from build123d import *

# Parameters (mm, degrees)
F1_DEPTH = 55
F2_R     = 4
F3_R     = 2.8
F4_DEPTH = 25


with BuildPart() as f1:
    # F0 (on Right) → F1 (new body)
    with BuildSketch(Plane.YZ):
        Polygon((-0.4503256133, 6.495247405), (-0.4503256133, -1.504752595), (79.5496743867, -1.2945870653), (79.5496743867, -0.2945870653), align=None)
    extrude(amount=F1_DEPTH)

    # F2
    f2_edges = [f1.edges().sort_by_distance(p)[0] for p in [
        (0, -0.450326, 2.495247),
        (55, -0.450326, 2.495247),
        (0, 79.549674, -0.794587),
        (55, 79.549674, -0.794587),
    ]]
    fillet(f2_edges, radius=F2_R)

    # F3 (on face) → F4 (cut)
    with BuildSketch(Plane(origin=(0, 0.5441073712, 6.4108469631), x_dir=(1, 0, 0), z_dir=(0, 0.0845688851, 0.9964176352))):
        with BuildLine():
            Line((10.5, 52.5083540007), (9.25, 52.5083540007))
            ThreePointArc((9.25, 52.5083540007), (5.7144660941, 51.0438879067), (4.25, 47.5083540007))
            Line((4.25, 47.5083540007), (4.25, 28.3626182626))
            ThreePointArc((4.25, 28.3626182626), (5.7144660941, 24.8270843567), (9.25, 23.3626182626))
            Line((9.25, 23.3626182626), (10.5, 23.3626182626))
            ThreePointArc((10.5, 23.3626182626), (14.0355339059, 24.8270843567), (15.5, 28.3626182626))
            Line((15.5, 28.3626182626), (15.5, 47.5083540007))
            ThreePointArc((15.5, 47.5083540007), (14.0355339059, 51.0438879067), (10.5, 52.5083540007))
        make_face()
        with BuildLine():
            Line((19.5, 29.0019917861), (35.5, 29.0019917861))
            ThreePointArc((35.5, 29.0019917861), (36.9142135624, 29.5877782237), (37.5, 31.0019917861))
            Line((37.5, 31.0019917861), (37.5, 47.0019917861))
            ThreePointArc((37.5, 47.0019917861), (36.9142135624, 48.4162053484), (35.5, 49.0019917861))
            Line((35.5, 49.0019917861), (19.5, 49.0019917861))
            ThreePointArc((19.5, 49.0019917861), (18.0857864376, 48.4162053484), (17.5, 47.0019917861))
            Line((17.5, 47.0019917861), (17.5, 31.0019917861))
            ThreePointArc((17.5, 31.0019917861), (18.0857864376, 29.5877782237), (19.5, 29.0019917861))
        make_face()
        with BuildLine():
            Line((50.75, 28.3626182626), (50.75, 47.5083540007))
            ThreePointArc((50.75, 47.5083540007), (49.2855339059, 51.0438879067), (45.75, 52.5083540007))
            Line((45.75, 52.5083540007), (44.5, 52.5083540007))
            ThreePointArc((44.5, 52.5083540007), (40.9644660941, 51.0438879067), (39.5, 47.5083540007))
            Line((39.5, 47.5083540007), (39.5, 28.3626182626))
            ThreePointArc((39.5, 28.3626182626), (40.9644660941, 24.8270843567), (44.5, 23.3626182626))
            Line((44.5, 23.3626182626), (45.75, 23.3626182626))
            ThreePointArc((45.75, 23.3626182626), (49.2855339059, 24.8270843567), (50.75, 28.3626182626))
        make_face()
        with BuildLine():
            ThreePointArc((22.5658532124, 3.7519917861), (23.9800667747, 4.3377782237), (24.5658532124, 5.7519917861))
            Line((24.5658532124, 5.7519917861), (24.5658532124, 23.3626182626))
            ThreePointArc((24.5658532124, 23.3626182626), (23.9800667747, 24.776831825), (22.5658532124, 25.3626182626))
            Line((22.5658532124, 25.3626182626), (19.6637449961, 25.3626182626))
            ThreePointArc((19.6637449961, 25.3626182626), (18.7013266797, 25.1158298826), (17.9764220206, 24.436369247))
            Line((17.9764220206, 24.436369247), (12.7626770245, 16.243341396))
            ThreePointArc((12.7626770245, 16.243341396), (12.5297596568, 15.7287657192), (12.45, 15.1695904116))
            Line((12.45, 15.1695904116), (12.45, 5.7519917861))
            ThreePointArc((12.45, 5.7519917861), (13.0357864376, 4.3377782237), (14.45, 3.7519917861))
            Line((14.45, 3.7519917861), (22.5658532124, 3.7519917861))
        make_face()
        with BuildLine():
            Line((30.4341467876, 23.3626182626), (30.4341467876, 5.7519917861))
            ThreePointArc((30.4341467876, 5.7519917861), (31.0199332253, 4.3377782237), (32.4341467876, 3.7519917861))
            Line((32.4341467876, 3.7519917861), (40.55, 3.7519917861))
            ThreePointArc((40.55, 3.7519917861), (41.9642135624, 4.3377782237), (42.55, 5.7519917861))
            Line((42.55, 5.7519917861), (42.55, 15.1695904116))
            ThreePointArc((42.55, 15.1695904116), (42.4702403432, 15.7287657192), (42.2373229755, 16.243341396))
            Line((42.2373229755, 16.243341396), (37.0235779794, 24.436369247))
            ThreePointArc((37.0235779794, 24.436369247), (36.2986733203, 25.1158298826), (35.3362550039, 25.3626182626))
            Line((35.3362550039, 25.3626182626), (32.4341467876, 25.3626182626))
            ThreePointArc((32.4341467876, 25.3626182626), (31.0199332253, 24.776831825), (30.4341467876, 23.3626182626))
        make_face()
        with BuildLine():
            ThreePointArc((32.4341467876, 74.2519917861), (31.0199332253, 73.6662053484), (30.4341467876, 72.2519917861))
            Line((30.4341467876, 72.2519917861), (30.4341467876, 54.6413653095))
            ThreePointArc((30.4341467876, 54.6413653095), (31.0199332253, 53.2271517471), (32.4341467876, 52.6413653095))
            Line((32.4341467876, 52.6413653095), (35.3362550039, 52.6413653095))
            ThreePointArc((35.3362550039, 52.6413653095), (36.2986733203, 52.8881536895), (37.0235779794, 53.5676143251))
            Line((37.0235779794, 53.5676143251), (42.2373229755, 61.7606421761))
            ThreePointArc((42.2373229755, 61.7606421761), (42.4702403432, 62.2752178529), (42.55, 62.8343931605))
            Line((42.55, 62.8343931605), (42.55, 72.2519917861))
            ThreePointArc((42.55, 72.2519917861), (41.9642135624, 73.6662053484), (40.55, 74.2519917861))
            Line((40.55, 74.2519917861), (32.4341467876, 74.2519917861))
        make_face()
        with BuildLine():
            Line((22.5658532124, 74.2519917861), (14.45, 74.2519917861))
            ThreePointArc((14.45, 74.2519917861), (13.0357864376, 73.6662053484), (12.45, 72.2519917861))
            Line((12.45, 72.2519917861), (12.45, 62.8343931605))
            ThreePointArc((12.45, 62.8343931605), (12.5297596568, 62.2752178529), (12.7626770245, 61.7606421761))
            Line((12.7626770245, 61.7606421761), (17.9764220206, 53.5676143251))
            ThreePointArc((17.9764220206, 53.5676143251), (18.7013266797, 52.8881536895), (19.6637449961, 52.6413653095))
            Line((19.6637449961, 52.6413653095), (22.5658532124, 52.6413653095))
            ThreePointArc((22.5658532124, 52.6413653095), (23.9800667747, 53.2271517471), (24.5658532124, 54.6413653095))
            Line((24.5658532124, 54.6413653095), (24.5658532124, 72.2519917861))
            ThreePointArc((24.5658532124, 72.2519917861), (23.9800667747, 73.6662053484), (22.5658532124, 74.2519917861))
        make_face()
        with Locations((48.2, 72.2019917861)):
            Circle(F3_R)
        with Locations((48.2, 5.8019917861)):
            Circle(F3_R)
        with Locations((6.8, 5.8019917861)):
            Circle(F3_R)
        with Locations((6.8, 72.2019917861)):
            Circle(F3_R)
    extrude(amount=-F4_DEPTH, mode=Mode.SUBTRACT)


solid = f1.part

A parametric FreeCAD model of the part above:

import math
import FreeCAD as App
import Part
import Sketcher
from FreeCAD import Vector


def edges_at(feature, points):
    """Names of the edges that pass closest to the given points."""
    edges = feature.Shape.Edges
    near = lambda p: min(range(len(edges)), key=lambda i: edges[i].distToShape(Part.Vertex(*p))[0])
    return sorted({f"Edge{near(p) + 1}" for p in points})


def add_polygon(sketch, points):
    """Adds a closed chain of lines whose ends are joined by coincident constraints."""
    first, n = sketch.GeometryCount, len(points)
    for a, b in zip(points, points[1:] + points[:1]):
        sketch.addGeometry(Part.LineSegment(App.Vector(*a, 0), App.Vector(*b, 0)), False)
    for i in range(n):
        sketch.addConstraint(Sketcher.Constraint("Coincident", first + i, 2, first + (i + 1) % n, 1))

doc = App.newDocument("Part")
body = doc.addObject("PartDesign::Body", "Body")

# Sketch on YZ plane
sketch1 = body.newObject("Sketcher::SketchObject", "Sketch")
sketch1.AttachmentSupport = (doc.getObject("YZ_Plane"), [""])
sketch1.MapMode = "FlatFace"
add_polygon(sketch1, [(-0.450326, 6.495247), (-0.450326, -1.504753), (79.549674, -1.294587), (79.549674, -0.294587)])  # lines 0-3
sketch1.addConstraint([
    Sketcher.Constraint("Vertical", 0),
    Sketcher.Constraint("Vertical", 2),
    Sketcher.Constraint("DistanceY", 0, 2, 0, 1, 8.0),
    Sketcher.Constraint("DistanceY", 2, 1, 2, 2, 1.0),
    Sketcher.Constraint("DistanceX", 0, 2, 1, 2, 80.0),
    Sketcher.Constraint("Distance", 3, 80.28762),
    Sketcher.Constraint("DistanceX", 0, 2, -1, 1, 0.450326),
    Sketcher.Constraint("DistanceY", 0, 2, -1, 1, 1.504753),
])
pad1 = body.newObject("PartDesign::Pad", "Pad")
pad1.Profile = sketch1
pad1.Length = 55
doc.recompute()

fillet = body.newObject("PartDesign::Fillet", "Fillet")
fillet.Base = (pad1, edges_at(pad1, [
    (0, -0.45, 2.495),
    (55, -0.45, 2.495),
    (0, 79.55, -0.795),
    (55, 79.55, -0.795),
]))
fillet.Radius = 4

# Sketch on an angled plane
sketch2 = body.newObject("Sketcher::SketchObject", "Sketch001")
sketch2.Placement = App.Placement(Vector(0, 0.544107, 6.410847), App.Rotation(Vector(1, 0, 0), Vector(0, 0.996417635, -0.084568885), Vector(0, 0.084568885, 0.996417635), "ZXY"))
sketch2.addGeometry([
    Part.LineSegment(Vector(10.5, 52.508354, 0), Vector(9.25, 52.508354, 0)),  # 0
    Part.ArcOfCircle(Part.Circle(Vector(9.25, 47.508354, 0), Vector(0, 0, 1), 5), math.radians(90), math.radians(180)),  # 1
    Part.LineSegment(Vector(4.25, 47.508354, 0), Vector(4.25, 28.362618, 0)),  # 2
    Part.ArcOfCircle(Part.Circle(Vector(9.25, 28.362618, 0), Vector(0, 0, 1), 5), math.radians(180), math.radians(270)),  # 3
    Part.LineSegment(Vector(9.25, 23.362618, 0), Vector(10.5, 23.362618, 0)),  # 4
    Part.ArcOfCircle(Part.Circle(Vector(10.5, 28.362618, 0), Vector(0, 0, 1), 5), math.radians(-90), math.radians(0)),  # 5
    Part.LineSegment(Vector(15.5, 28.362618, 0), Vector(15.5, 47.508354, 0)),  # 6
    Part.ArcOfCircle(Part.Circle(Vector(10.5, 47.508354, 0), Vector(0, 0, 1), 5), math.radians(0), math.radians(90)),  # 7
    Part.LineSegment(Vector(19.5, 29.001992, 0), Vector(35.5, 29.001992, 0)),  # 8
    Part.ArcOfCircle(Part.Circle(Vector(35.5, 31.001992, 0), Vector(0, 0, 1), 2), math.radians(-90), math.radians(0)),  # 9
    Part.LineSegment(Vector(37.5, 31.001992, 0), Vector(37.5, 47.001992, 0)),  # 10
    Part.ArcOfCircle(Part.Circle(Vector(35.5, 47.001992, 0), Vector(0, 0, 1), 2), math.radians(0), math.radians(90)),  # 11
    Part.LineSegment(Vector(35.5, 49.001992, 0), Vector(19.5, 49.001992, 0)),  # 12
    Part.ArcOfCircle(Part.Circle(Vector(19.5, 47.001992, 0), Vector(0, 0, 1), 2), math.radians(90), math.radians(180)),  # 13
    Part.LineSegment(Vector(17.5, 47.001992, 0), Vector(17.5, 31.001992, 0)),  # 14
    Part.ArcOfCircle(Part.Circle(Vector(19.5, 31.001992, 0), Vector(0, 0, 1), 2), math.radians(180), math.radians(270)),  # 15
    Part.LineSegment(Vector(50.75, 28.362618, 0), Vector(50.75, 47.508354, 0)),  # 16
    Part.ArcOfCircle(Part.Circle(Vector(45.75, 47.508354, 0), Vector(0, 0, 1), 5), math.radians(0), math.radians(90)),  # 17
    Part.LineSegment(Vector(45.75, 52.508354, 0), Vector(44.5, 52.508354, 0)),  # 18
    Part.ArcOfCircle(Part.Circle(Vector(44.5, 47.508354, 0), Vector(0, 0, 1), 5), math.radians(90), math.radians(180)),  # 19
    Part.LineSegment(Vector(39.5, 47.508354, 0), Vector(39.5, 28.362618, 0)),  # 20
    Part.ArcOfCircle(Part.Circle(Vector(44.5, 28.362618, 0), Vector(0, 0, 1), 5), math.radians(180), math.radians(270)),  # 21
    Part.LineSegment(Vector(44.5, 23.362618, 0), Vector(45.75, 23.362618, 0)),  # 22
    Part.ArcOfCircle(Part.Circle(Vector(45.75, 28.362618, 0), Vector(0, 0, 1), 5), math.radians(-90), math.radians(0)),  # 23
    Part.ArcOfCircle(Part.Circle(Vector(22.565853, 5.751992, 0), Vector(0, 0, 1), 2), math.radians(-90), math.radians(0)),  # 24
    Part.LineSegment(Vector(24.565853, 5.751992, 0), Vector(24.565853, 23.362618, 0)),  # 25
    Part.ArcOfCircle(Part.Circle(Vector(22.565853, 23.362618, 0), Vector(0, 0, 1), 2), math.radians(0), math.radians(90)),  # 26
    Part.LineSegment(Vector(22.565853, 25.362618, 0), Vector(19.663745, 25.362618, 0)),  # 27
    Part.ArcOfCircle(Part.Circle(Vector(19.663745, 23.362618, 0), Vector(0, 0, 1), 2), math.radians(90), math.radians(147.528808)),  # 28
    Part.LineSegment(Vector(17.976422, 24.436369, 0), Vector(12.762677, 16.243341, 0)),  # 29
    Part.ArcOfCircle(Part.Circle(Vector(14.45, 15.16959, 0), Vector(0, 0, 1), 2), math.radians(147.528808), math.radians(180)),  # 30
    Part.LineSegment(Vector(12.45, 15.16959, 0), Vector(12.45, 5.751992, 0)),  # 31
    Part.ArcOfCircle(Part.Circle(Vector(14.45, 5.751992, 0), Vector(0, 0, 1), 2), math.radians(180), math.radians(270)),  # 32
    Part.LineSegment(Vector(14.45, 3.751992, 0), Vector(22.565853, 3.751992, 0)),  # 33
    Part.LineSegment(Vector(30.434147, 23.362618, 0), Vector(30.434147, 5.751992, 0)),  # 34
    Part.ArcOfCircle(Part.Circle(Vector(32.434147, 5.751992, 0), Vector(0, 0, 1), 2), math.radians(180), math.radians(270)),  # 35
    Part.LineSegment(Vector(32.434147, 3.751992, 0), Vector(40.55, 3.751992, 0)),  # 36
    Part.ArcOfCircle(Part.Circle(Vector(40.55, 5.751992, 0), Vector(0, 0, 1), 2), math.radians(-90), math.radians(0)),  # 37
    Part.LineSegment(Vector(42.55, 5.751992, 0), Vector(42.55, 15.16959, 0)),  # 38
    Part.ArcOfCircle(Part.Circle(Vector(40.55, 15.16959, 0), Vector(0, 0, 1), 2), math.radians(0), math.radians(32.471192)),  # 39
    Part.LineSegment(Vector(42.237323, 16.243341, 0), Vector(37.023578, 24.436369, 0)),  # 40
    Part.ArcOfCircle(Part.Circle(Vector(35.336255, 23.362618, 0), Vector(0, 0, 1), 2), math.radians(32.471192), math.radians(90)),  # 41
    Part.LineSegment(Vector(35.336255, 25.362618, 0), Vector(32.434147, 25.362618, 0)),  # 42
    Part.ArcOfCircle(Part.Circle(Vector(32.434147, 23.362618, 0), Vector(0, 0, 1), 2), math.radians(90), math.radians(180)),  # 43
    Part.ArcOfCircle(Part.Circle(Vector(32.434147, 72.251992, 0), Vector(0, 0, 1), 2), math.radians(90), math.radians(180)),  # 44
    Part.LineSegment(Vector(30.434147, 72.251992, 0), Vector(30.434147, 54.641365, 0)),  # 45
    Part.ArcOfCircle(Part.Circle(Vector(32.434147, 54.641365, 0), Vector(0, 0, 1), 2), math.radians(180), math.radians(270)),  # 46
    Part.LineSegment(Vector(32.434147, 52.641365, 0), Vector(35.336255, 52.641365, 0)),  # 47
    Part.ArcOfCircle(Part.Circle(Vector(35.336255, 54.641365, 0), Vector(0, 0, 1), 2), math.radians(-90), math.radians(-32.471192)),  # 48
    Part.LineSegment(Vector(37.023578, 53.567614, 0), Vector(42.237323, 61.760642, 0)),  # 49
    Part.ArcOfCircle(Part.Circle(Vector(40.55, 62.834393, 0), Vector(0, 0, 1), 2), math.radians(-32.471192), math.radians(0)),  # 50
    Part.LineSegment(Vector(42.55, 62.834393, 0), Vector(42.55, 72.251992, 0)),  # 51
    Part.ArcOfCircle(Part.Circle(Vector(40.55, 72.251992, 0), Vector(0, 0, 1), 2), math.radians(0), math.radians(90)),  # 52
    Part.LineSegment(Vector(40.55, 74.251992, 0), Vector(32.434147, 74.251992, 0)),  # 53
    Part.LineSegment(Vector(22.565853, 74.251992, 0), Vector(14.45, 74.251992, 0)),  # 54
    Part.ArcOfCircle(Part.Circle(Vector(14.45, 72.251992, 0), Vector(0, 0, 1), 2), math.radians(90), math.radians(180)),  # 55
    Part.LineSegment(Vector(12.45, 72.251992, 0), Vector(12.45, 62.834393, 0)),  # 56
    Part.ArcOfCircle(Part.Circle(Vector(14.45, 62.834393, 0), Vector(0, 0, 1), 2), math.radians(180), math.radians(212.471192)),  # 57
    Part.LineSegment(Vector(12.762677, 61.760642, 0), Vector(17.976422, 53.567614, 0)),  # 58
    Part.ArcOfCircle(Part.Circle(Vector(19.663745, 54.641365, 0), Vector(0, 0, 1), 2), math.radians(-147.528808), math.radians(-90)),  # 59
    Part.LineSegment(Vector(19.663745, 52.641365, 0), Vector(22.565853, 52.641365, 0)),  # 60
    Part.ArcOfCircle(Part.Circle(Vector(22.565853, 54.641365, 0), Vector(0, 0, 1), 2), math.radians(-90), math.radians(0)),  # 61
    Part.LineSegment(Vector(24.565853, 54.641365, 0), Vector(24.565853, 72.251992, 0)),  # 62
    Part.ArcOfCircle(Part.Circle(Vector(22.565853, 72.251992, 0), Vector(0, 0, 1), 2), math.radians(0), math.radians(90)),  # 63
    Part.Circle(Vector(48.2, 72.201992, 0), Vector(0, 0, 1), 2.8),  # 64
    Part.Circle(Vector(48.2, 5.801992, 0), Vector(0, 0, 1), 2.8),  # 65
    Part.Circle(Vector(6.8, 5.801992, 0), Vector(0, 0, 1), 2.8),  # 66
    Part.Circle(Vector(6.8, 72.201992, 0), Vector(0, 0, 1), 2.8),  # 67
], False)
sketch2.addConstraint([
    Sketcher.Constraint("Tangent", 0, 2, 1, 1),
    Sketcher.Constraint("Tangent", 1, 2, 2, 1),
    Sketcher.Constraint("Tangent", 2, 2, 3, 1),
    Sketcher.Constraint("Tangent", 3, 2, 4, 1),
    Sketcher.Constraint("Tangent", 4, 2, 5, 1),
    Sketcher.Constraint("Tangent", 5, 2, 6, 1),
    Sketcher.Constraint("Tangent", 6, 2, 7, 1),
    Sketcher.Constraint("Tangent", 7, 2, 0, 1),
    Sketcher.Constraint("Tangent", 8, 2, 9, 1),
    Sketcher.Constraint("Tangent", 9, 2, 10, 1),
    Sketcher.Constraint("Tangent", 10, 2, 11, 1),
    Sketcher.Constraint("Tangent", 11, 2, 12, 1),
    Sketcher.Constraint("Tangent", 12, 2, 13, 1),
    Sketcher.Constraint("Tangent", 13, 2, 14, 1),
    Sketcher.Constraint("Tangent", 14, 2, 15, 1),
    Sketcher.Constraint("Tangent", 15, 2, 8, 1),
    Sketcher.Constraint("Tangent", 16, 2, 17, 1),
    Sketcher.Constraint("Tangent", 17, 2, 18, 1),
    Sketcher.Constraint("Tangent", 18, 2, 19, 1),
    Sketcher.Constraint("Tangent", 19, 2, 20, 1),
    Sketcher.Constraint("Tangent", 20, 2, 21, 1),
    Sketcher.Constraint("Tangent", 21, 2, 22, 1),
    Sketcher.Constraint("Tangent", 22, 2, 23, 1),
    Sketcher.Constraint("Tangent", 23, 2, 16, 1),
    Sketcher.Constraint("Tangent", 24, 2, 25, 1),
    Sketcher.Constraint("Tangent", 25, 2, 26, 1),
    Sketcher.Constraint("Tangent", 26, 2, 27, 1),
    Sketcher.Constraint("Tangent", 27, 2, 28, 1),
    Sketcher.Constraint("Tangent", 28, 2, 29, 1),
    Sketcher.Constraint("Tangent", 29, 2, 30, 1),
    Sketcher.Constraint("Tangent", 30, 2, 31, 1),
    Sketcher.Constraint("Tangent", 31, 2, 32, 1),
    Sketcher.Constraint("Tangent", 32, 2, 33, 1),
    Sketcher.Constraint("Tangent", 33, 2, 24, 1),
    Sketcher.Constraint("Tangent", 34, 2, 35, 1),
    Sketcher.Constraint("Tangent", 35, 2, 36, 1),
    Sketcher.Constraint("Tangent", 36, 2, 37, 1),
    Sketcher.Constraint("Tangent", 37, 2, 38, 1),
    Sketcher.Constraint("Tangent", 38, 2, 39, 1),
    Sketcher.Constraint("Tangent", 39, 2, 40, 1),
    Sketcher.Constraint("Tangent", 40, 2, 41, 1),
    Sketcher.Constraint("Tangent", 41, 2, 42, 1),
    Sketcher.Constraint("Tangent", 42, 2, 43, 1),
    Sketcher.Constraint("Tangent", 43, 2, 34, 1),
    Sketcher.Constraint("Tangent", 44, 2, 45, 1),
    Sketcher.Constraint("Tangent", 45, 2, 46, 1),
    Sketcher.Constraint("Tangent", 46, 2, 47, 1),
    Sketcher.Constraint("Tangent", 47, 2, 48, 1),
    Sketcher.Constraint("Tangent", 48, 2, 49, 1),
    Sketcher.Constraint("Tangent", 49, 2, 50, 1),
    Sketcher.Constraint("Tangent", 50, 2, 51, 1),
    Sketcher.Constraint("Tangent", 51, 2, 52, 1),
    Sketcher.Constraint("Tangent", 52, 2, 53, 1),
    Sketcher.Constraint("Tangent", 53, 2, 44, 1),
    Sketcher.Constraint("Tangent", 54, 2, 55, 1),
    Sketcher.Constraint("Tangent", 55, 2, 56, 1),
    Sketcher.Constraint("Tangent", 56, 2, 57, 1),
    Sketcher.Constraint("Tangent", 57, 2, 58, 1),
    Sketcher.Constraint("Tangent", 58, 2, 59, 1),
    Sketcher.Constraint("Tangent", 59, 2, 60, 1),
    Sketcher.Constraint("Tangent", 60, 2, 61, 1),
    Sketcher.Constraint("Tangent", 61, 2, 62, 1),
    Sketcher.Constraint("Tangent", 62, 2, 63, 1),
    Sketcher.Constraint("Tangent", 63, 2, 54, 1),
    Sketcher.Constraint("Horizontal", 0),
    Sketcher.Constraint("Vertical", 2),
    Sketcher.Constraint("Horizontal", 4),
    Sketcher.Constraint("Vertical", 6),
    Sketcher.Constraint("Horizontal", 8),
    Sketcher.Constraint("Vertical", 10),
    Sketcher.Constraint("Horizontal", 12),
    Sketcher.Constraint("Vertical", 14),
    Sketcher.Constraint("Vertical", 16),
    Sketcher.Constraint("Horizontal", 18),
    Sketcher.Constraint("Vertical", 20),
    Sketcher.Constraint("Horizontal", 22),
    Sketcher.Constraint("Vertical", 25),
    Sketcher.Constraint("Horizontal", 27),
    Sketcher.Constraint("Vertical", 31),
    Sketcher.Constraint("Horizontal", 33),
    Sketcher.Constraint("Vertical", 34),
    Sketcher.Constraint("Horizontal", 36),
    Sketcher.Constraint("Vertical", 38),
    Sketcher.Constraint("Horizontal", 42),
    Sketcher.Constraint("Vertical", 45),
    Sketcher.Constraint("Horizontal", 47),
    Sketcher.Constraint("Vertical", 51),
    Sketcher.Constraint("Horizontal", 53),
    Sketcher.Constraint("Horizontal", 54),
    Sketcher.Constraint("Vertical", 56),
    Sketcher.Constraint("Horizontal", 60),
    Sketcher.Constraint("Vertical", 62),
    Sketcher.Constraint("Equal", 1, 3),
    Sketcher.Constraint("Equal", 3, 5),
    Sketcher.Constraint("Equal", 5, 7),
    Sketcher.Constraint("Equal", 9, 11),
    Sketcher.Constraint("Equal", 11, 13),
    Sketcher.Constraint("Equal", 13, 15),
    Sketcher.Constraint("Equal", 7, 17),
    Sketcher.Constraint("Equal", 17, 19),
    Sketcher.Constraint("Equal", 19, 21),
    Sketcher.Constraint("Equal", 21, 23),
    Sketcher.Constraint("Equal", 15, 24),
    Sketcher.Constraint("Equal", 24, 26),
    Sketcher.Constraint("Equal", 26, 28),
    Sketcher.Constraint("Equal", 28, 30),
    Sketcher.Constraint("Equal", 30, 32),
    Sketcher.Constraint("Equal", 32, 35),
    Sketcher.Constraint("Equal", 35, 37),
    Sketcher.Constraint("Equal", 37, 39),
    Sketcher.Constraint("Equal", 39, 41),
    Sketcher.Constraint("Equal", 41, 43),
    Sketcher.Constraint("Equal", 43, 44),
    Sketcher.Constraint("Equal", 44, 46),
    Sketcher.Constraint("Equal", 46, 48),
    Sketcher.Constraint("Equal", 48, 50),
    Sketcher.Constraint("Equal", 50, 52),
    Sketcher.Constraint("Equal", 52, 55),
    Sketcher.Constraint("Equal", 55, 57),
    Sketcher.Constraint("Equal", 57, 59),
    Sketcher.Constraint("Equal", 59, 61),
    Sketcher.Constraint("Equal", 61, 63),
    Sketcher.Constraint("Equal", 64, 65),
    Sketcher.Constraint("Equal", 65, 66),
    Sketcher.Constraint("Equal", 66, 67),
    Sketcher.Constraint("Parallel", 29, 49),
    Sketcher.Constraint("Parallel", 40, 58),
    Sketcher.Constraint("Horizontal", 7, 3, 17, 3),
    Sketcher.Constraint("Horizontal", 5, 3, 21, 3),
    Sketcher.Constraint("Horizontal", 32, 3, 35, 3),
    Sketcher.Constraint("Horizontal", 30, 3, 39, 3),
    Sketcher.Constraint("Horizontal", 28, 3, 41, 3),
    Sketcher.Constraint("Horizontal", 52, 3, 55, 3),
    Sketcher.Constraint("Horizontal", 50, 3, 57, 3),
    Sketcher.Constraint("Horizontal", 48, 3, 59, 3),
    Sketcher.Constraint("Horizontal", 65, 3, 66, 3),
    Sketcher.Constraint("Horizontal", 64, 3, 67, 3),
    Sketcher.Constraint("Horizontal", 43, 3, 3, 2),
    Sketcher.Constraint("Horizontal", 29, 2, 39, 2),
    Sketcher.Constraint("Vertical", 43, 3, 44, 3),
    Sketcher.Constraint("Vertical", 41, 3, 48, 3),
    Sketcher.Constraint("Vertical", 39, 3, 50, 3),
    Sketcher.Constraint("Vertical", 32, 3, 55, 3),
    Sketcher.Constraint("Vertical", 26, 3, 61, 3),
    Sketcher.Constraint("Vertical", 64, 3, 65, 3),
    Sketcher.Constraint("Vertical", 66, 3, 67, 3),
    Sketcher.Constraint("Equal", 4, 18),
    Sketcher.Constraint("Equal", 33, 36),
    Sketcher.Constraint("Equal", 12, 10),
    Sketcher.Constraint("Equal", 34, 45),
    Sketcher.Constraint("Radius", 1, 5.0),
    Sketcher.Constraint("Radius", 9, 2.0),
    Sketcher.Constraint("Diameter", 64, 5.6),
    Sketcher.Constraint("DistanceX", 8, 1, 8, 2, 16.0),
    Sketcher.Constraint("DistanceX", 0, 2, 0, 1, 1.25),
    Sketcher.Constraint("DistanceX", -1, 1, 5, 3, 10.5),
    Sketcher.Constraint("DistanceX", -1, 1, 9, 3, 35.5),
    Sketcher.Constraint("DistanceX", -1, 1, 19, 3, 44.5),
    Sketcher.Constraint("DistanceX", -1, 1, 64, 3, 48.2),
    Sketcher.Constraint("DistanceX", -1, 1, 66, 3, 6.8),
    Sketcher.Constraint("DistanceX", -1, 1, 30, 3, 14.45),
    Sketcher.Constraint("DistanceX", -1, 1, 37, 3, 40.55),
    Sketcher.Constraint("DistanceY", 31, 2, 31, 1, 9.417599),
    Sketcher.Constraint("DistanceX", 27, 2, 27, 1, 2.902108),
    Sketcher.Constraint("DistanceX", 33, 1, 33, 2, 8.115853),
    Sketcher.Constraint("DistanceY", 2, 2, 2, 1, 19.145736),
    Sketcher.Constraint("DistanceY", 25, 1, 25, 2, 17.610626),
    Sketcher.Constraint("DistanceY", -1, 1, 3, 3, 28.362618),
    Sketcher.Constraint("DistanceY", -1, 1, 9, 3, 31.001992),
    Sketcher.Constraint("DistanceY", -1, 1, 44, 3, 72.251992),
    Sketcher.Constraint("DistanceY", -1, 1, 64, 3, 72.201992),
    Sketcher.Constraint("DistanceY", -1, 1, 65, 3, 5.801992),
])
pocket1 = body.newObject("PartDesign::Pocket", "Pocket")
pocket1.Profile = sketch2
pocket1.Length = 25

doc.recompute()
